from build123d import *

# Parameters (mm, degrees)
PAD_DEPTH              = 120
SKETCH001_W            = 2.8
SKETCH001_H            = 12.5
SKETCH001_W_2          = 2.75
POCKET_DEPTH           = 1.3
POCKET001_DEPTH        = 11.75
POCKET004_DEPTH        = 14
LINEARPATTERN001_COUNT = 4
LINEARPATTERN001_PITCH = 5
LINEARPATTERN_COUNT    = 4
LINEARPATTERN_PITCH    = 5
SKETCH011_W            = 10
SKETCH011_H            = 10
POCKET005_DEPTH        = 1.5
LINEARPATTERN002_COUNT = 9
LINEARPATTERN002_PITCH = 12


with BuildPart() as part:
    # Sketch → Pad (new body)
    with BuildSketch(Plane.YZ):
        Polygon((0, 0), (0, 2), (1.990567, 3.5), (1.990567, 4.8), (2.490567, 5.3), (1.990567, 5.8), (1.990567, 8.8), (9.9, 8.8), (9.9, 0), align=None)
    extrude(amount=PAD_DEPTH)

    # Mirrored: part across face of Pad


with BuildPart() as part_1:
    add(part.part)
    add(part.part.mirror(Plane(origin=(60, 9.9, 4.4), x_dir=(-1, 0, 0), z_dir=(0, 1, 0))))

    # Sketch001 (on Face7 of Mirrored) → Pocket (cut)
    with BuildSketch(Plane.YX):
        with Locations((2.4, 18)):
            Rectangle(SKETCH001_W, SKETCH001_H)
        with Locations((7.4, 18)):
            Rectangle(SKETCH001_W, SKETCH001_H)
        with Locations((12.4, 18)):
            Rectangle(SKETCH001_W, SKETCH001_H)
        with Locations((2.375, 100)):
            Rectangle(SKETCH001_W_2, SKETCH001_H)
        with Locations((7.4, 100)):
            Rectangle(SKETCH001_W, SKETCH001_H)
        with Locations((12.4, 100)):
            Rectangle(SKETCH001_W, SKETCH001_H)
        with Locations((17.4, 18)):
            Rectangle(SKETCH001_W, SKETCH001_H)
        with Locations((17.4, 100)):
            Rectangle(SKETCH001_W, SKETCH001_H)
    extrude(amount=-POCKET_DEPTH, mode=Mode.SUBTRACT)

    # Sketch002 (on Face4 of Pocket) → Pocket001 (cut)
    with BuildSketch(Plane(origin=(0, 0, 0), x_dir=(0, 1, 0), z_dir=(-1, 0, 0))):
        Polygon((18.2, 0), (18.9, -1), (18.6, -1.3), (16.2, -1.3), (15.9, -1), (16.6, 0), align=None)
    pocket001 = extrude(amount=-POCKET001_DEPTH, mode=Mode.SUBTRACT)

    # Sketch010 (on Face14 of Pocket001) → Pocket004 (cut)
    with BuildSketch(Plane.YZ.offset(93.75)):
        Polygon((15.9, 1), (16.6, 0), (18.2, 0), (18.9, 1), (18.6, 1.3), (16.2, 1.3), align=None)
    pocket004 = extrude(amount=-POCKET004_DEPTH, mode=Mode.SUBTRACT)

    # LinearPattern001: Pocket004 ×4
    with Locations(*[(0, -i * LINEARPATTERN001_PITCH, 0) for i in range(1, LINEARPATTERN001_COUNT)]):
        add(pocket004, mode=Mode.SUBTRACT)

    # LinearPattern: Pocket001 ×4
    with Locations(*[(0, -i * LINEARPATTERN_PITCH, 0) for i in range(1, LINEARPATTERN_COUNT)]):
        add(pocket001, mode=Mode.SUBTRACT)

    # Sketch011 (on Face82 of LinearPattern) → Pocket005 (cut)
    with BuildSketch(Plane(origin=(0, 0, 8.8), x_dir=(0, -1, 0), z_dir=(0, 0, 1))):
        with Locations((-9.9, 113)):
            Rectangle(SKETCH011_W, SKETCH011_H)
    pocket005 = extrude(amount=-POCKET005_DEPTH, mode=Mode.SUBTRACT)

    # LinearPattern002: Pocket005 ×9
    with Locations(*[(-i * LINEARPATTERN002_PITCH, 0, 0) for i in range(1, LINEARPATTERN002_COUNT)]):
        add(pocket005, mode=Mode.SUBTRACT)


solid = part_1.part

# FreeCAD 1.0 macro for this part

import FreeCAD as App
import Part
import Sketcher

V = App.Vector
Q = App.Units.Quantity

doc = App.newDocument("Part")
body = doc.addObject("PartDesign::Body", "Body")

sketch1 = body.newObject("Sketcher::SketchObject", "Sketch")
sketch1.AttachmentSupport = (doc.getObject("YZ_Plane"), [""])
sketch1.MapMode = "FlatFace"
sketch1.addGeometry([
    Part.LineSegment(V(0, 2, 0), V(0, 0, 0)),
    Part.LineSegment(V(0, 0, 0), V(9.9, 0, 0)),
    Part.LineSegment(V(9.9, 0, 0), V(9.9, 8.8, 0)),
    Part.LineSegment(V(9.9, 8.8, 0), V(1.990567, 8.8, 0)),
    Part.LineSegment(V(1.990567, 8.8, 0), V(1.990567, 5.8, 0)),
    Part.LineSegment(V(1.990567, 5.8, 0), V(2.490567, 5.3, 0)),
    Part.LineSegment(V(2.490567, 5.3, 0), V(1.990567, 4.8, 0)),
    Part.LineSegment(V(1.990567, 4.8, 0), V(1.990567, 3.5, 0)),
    Part.LineSegment(V(1.990567, 3.5, 0), V(0, 2, 0)),
], False)
sketch1.addConstraint([
    Sketcher.Constraint("Coincident", 0, 2, 1, 1),
    Sketcher.Constraint("Coincident", 1, 2, 2, 1),
    Sketcher.Constraint("Coincident", 2, 2, 3, 1),
    Sketcher.Constraint("Coincident", 3, 2, 4, 1),
    Sketcher.Constraint("Coincident", 4, 2, 5, 1),
    Sketcher.Constraint("Coincident", 5, 2, 6, 1),
    Sketcher.Constraint("Coincident", 6, 2, 7, 1),
    Sketcher.Constraint("Coincident", 7, 2, 8, 1),
    Sketcher.Constraint("Coincident", 8, 2, 0, 1),
    Sketcher.Constraint("Vertical", 0),
    Sketcher.Constraint("Horizontal", 1),
    Sketcher.Constraint("Vertical", 2),
    Sketcher.Constraint("Horizontal", 3),
    Sketcher.Constraint("Vertical", 4),
    Sketcher.Constraint("Vertical", 7),
    Sketcher.Constraint("Coincident", 0, 2, -1, 1),
    Sketcher.Constraint("Perpendicular", 5, 6),
    Sketcher.Constraint("Vertical", 4, 2, 6, 2),
    Sketcher.Constraint("Equal", 5, 6),
    Sketcher.Constraint("DistanceY", 0, 2, 0, 1, Q("2 mm")),
    Sketcher.Constraint("DistanceY", 4, 2, 4, 1, Q("3 mm")),
    Sketcher.Constraint("Angle", 8, Q("-142.999997 deg")),
    Sketcher.Constraint("DistanceX", 1, 1, 1, 2, Q("9.9 mm")),
    Sketcher.Constraint("DistanceY", 2, 1, 2, 2, Q("8.8 mm")),
    Sketcher.Constraint("DistanceY", 7, 2, 7, 1, Q("1.3 mm")),
    Sketcher.Constraint("DistanceY", 6, 2, 4, 2, Q("1 mm")),
])
pad1 = body.newObject("PartDesign::Pad", "Pad")
pad1.Profile = sketch1
pad1.Length = 120
body2 = doc.addObject("PartDesign::Body", "Body001")
doc.recompute()

body2.BaseFeature = body
doc.recompute()

mirroring = doc.addObject("Part::Mirroring", "Mirroring")
mirroring.Source = body
mirroring.Base = V(60, 9.9, 4.4)
mirroring.Normal = V(0, 1, 0)
body3 = doc.addObject("PartDesign::Body", "Body002")
body3.BaseFeature = mirroring
boolean = body2.newObject("PartDesign::Boolean", "Boolean")
boolean.Type = "Fuse"
boolean.addObjects([body3])
doc.recompute()

sketch2 = body2.newObject("Sketcher::SketchObject", "Sketch001")
sketch2.AttachmentSupport = (doc.getObject("XY_Plane001"), [""])
sketch2.MapMode = "FlatFace"
sketch2.addGeometry([
    Part.LineSegment(V(24.25, 1, 0), V(11.75, 1, 0)),
    Part.LineSegment(V(11.75, 1, 0), V(11.75, 3.8, 0)),
    Part.LineSegment(V(11.75, 3.8, 0), V(24.25, 3.8, 0)),
    Part.LineSegment(V(24.25, 3.8, 0), V(24.25, 1, 0)),
    Part.LineSegment(V(24.25, 6, 0), V(11.75, 6, 0)),
    Part.LineSegment(V(11.75, 6, 0), V(11.75, 8.8, 0)),
    Part.LineSegment(V(11.75, 8.8, 0), V(24.25, 8.8, 0)),
    Part.LineSegment(V(24.25, 8.8, 0), V(24.25, 6, 0)),
    Part.LineSegment(V(24.25, 11, 0), V(11.75, 11, 0)),
    Part.LineSegment(V(11.75, 11, 0), V(11.75, 13.8, 0)),
    Part.LineSegment(V(11.75, 13.8, 0), V(24.25, 13.8, 0)),
    Part.LineSegment(V(24.25, 13.8, 0), V(24.25, 11, 0)),
    Part.LineSegment(V(106.25, 1, 0), V(93.75, 1, 0)),
    Part.LineSegment(V(93.75, 1, 0), V(93.75, 3.75, 0)),
    Part.LineSegment(V(93.75, 3.75, 0), V(106.25, 3.75, 0)),
    Part.LineSegment(V(106.25, 3.75, 0), V(106.25, 1, 0)),
    Part.LineSegment(V(106.25, 6, 0), V(93.75, 6, 0)),
    Part.LineSegment(V(93.75, 6, 0), V(93.75, 8.8, 0)),
    Part.LineSegment(V(93.75, 8.8, 0), V(106.25, 8.8, 0)),
    Part.LineSegment(V(106.25, 8.8, 0), V(106.25, 6, 0)),
    Part.LineSegment(V(106.25, 11, 0), V(93.75, 11, 0)),
    Part.LineSegment(V(93.75, 11, 0), V(93.75, 13.8, 0)),
    Part.LineSegment(V(93.75, 13.8, 0), V(106.25, 13.8, 0)),
    Part.LineSegment(V(106.25, 13.8, 0), V(106.25, 11, 0)),
    Part.LineSegment(V(24.25, 16, 0), V(11.75, 16, 0)),
    Part.LineSegment(V(11.75, 16, 0), V(11.75, 18.8, 0)),
    Part.LineSegment(V(11.75, 18.8, 0), V(24.25, 18.8, 0)),
    Part.LineSegment(V(24.25, 18.8, 0), V(24.25, 16, 0)),
    Part.LineSegment(V(106.25, 16, 0), V(93.75, 16, 0)),
    Part.LineSegment(V(93.75, 16, 0), V(93.75, 18.8, 0)),
    Part.LineSegment(V(93.75, 18.8, 0), V(106.25, 18.8, 0)),
    Part.LineSegment(V(106.25, 18.8, 0), V(106.25, 16, 0)),
], False)
sketch2.addConstraint([
    Sketcher.Constraint("Coincident", 0, 2, 1, 1),
    Sketcher.Constraint("Coincident", 1, 2, 2, 1),
    Sketcher.Constraint("Coincident", 2, 2, 3, 1),
    Sketcher.Constraint("Coincident", 3, 2, 0, 1),
    Sketcher.Constraint("Coincident", 4, 2, 5, 1),
    Sketcher.Constraint("Coincident", 5, 2, 6, 1),
    Sketcher.Constraint("Coincident", 6, 2, 7, 1),
    Sketcher.Constraint("Coincident", 7, 2, 4, 1),
    Sketcher.Constraint("Coincident", 8, 2, 9, 1),
    Sketcher.Constraint("Coincident", 9, 2, 10, 1),
    Sketcher.Constraint("Coincident", 10, 2, 11, 1),
    Sketcher.Constraint("Coincident", 11, 2, 8, 1),
    Sketcher.Constraint("Coincident", 12, 2, 13, 1),
    Sketcher.Constraint("Coincident", 13, 2, 14, 1),
    Sketcher.Constraint("Coincident", 14, 2, 15, 1),
    Sketcher.Constraint("Coincident", 15, 2, 12, 1),
    Sketcher.Constraint("Coincident", 16, 2, 17, 1),
    Sketcher.Constraint("Coincident", 17, 2, 18, 1),
    Sketcher.Constraint("Coincident", 18, 2, 19, 1),
    Sketcher.Constraint("Coincident", 19, 2, 16, 1),
    Sketcher.Constraint("Coincident", 20, 2, 21, 1),
    Sketcher.Constraint("Coincident", 21, 2, 22, 1),
    Sketcher.Constraint("Coincident", 22, 2, 23, 1),
    Sketcher.Constraint("Coincident", 23, 2, 20, 1),
    Sketcher.Constraint("Coincident", 24, 2, 25, 1),
    Sketcher.Constraint("Coincident", 25, 2, 26, 1),
    Sketcher.Constraint("Coincident", 26, 2, 27, 1),
    Sketcher.Constraint("Coincident", 27, 2, 24, 1),
    Sketcher.Constraint("Coincident", 28, 2, 29, 1),
    Sketcher.Constraint("Coincident", 29, 2, 30, 1),
    Sketcher.Constraint("Coincident", 30, 2, 31, 1),
    Sketcher.Constraint("Coincident", 31, 2, 28, 1),
    Sketcher.Constraint("Horizontal", 0),
    Sketcher.Constraint("Vertical", 1),
    Sketcher.Constraint("Horizontal", 2),
    Sketcher.Constraint("Vertical", 3),
    Sketcher.Constraint("Horizontal", 4),
    Sketcher.Constraint("Vertical", 5),
    Sketcher.Constraint("Horizontal", 6),
    Sketcher.Constraint("Vertical", 7),
    Sketcher.Constraint("Horizontal", 8),
    Sketcher.Constraint("Vertical", 9),
    Sketcher.Constraint("Horizontal", 10),
    Sketcher.Constraint("Vertical", 11),
    Sketcher.Constraint("Horizontal", 12),
    Sketcher.Constraint("Vertical", 13),
    Sketcher.Constraint("Horizontal", 14),
    Sketcher.Constraint("Vertical", 15),
    Sketcher.Constraint("Horizontal", 16),
    Sketcher.Constraint("Vertical", 17),
    Sketcher.Constraint("Horizontal", 18),
    Sketcher.Constraint("Vertical", 19),
    Sketcher.Constraint("Horizontal", 20),
    Sketcher.Constraint("Vertical", 21),
    Sketcher.Constraint("Horizontal", 22),
    Sketcher.Constraint("Vertical", 23),
    Sketcher.Constraint("Horizontal", 24),
    Sketcher.Constraint("Vertical", 25),
    Sketcher.Constraint("Horizontal", 26),
    Sketcher.Constraint("Vertical", 27),
    Sketcher.Constraint("Horizontal", 28),
    Sketcher.Constraint("Vertical", 29),
    Sketcher.Constraint("Horizontal", 30),
    Sketcher.Constraint("Vertical", 31),
    Sketcher.Constraint("Horizontal", 3, 2, 12, 2),
    Sketcher.Constraint("Horizontal", 7, 2, 16, 2),
    Sketcher.Constraint("Horizontal", 6, 2, 17, 2),
    Sketcher.Constraint("Horizontal", 11, 2, 20, 2),
    Sketcher.Constraint("Horizontal", 10, 2, 21, 2),
    Sketcher.Constraint("Horizontal", 27, 2, 28, 2),
    Sketcher.Constraint("Horizontal", 26, 2, 29, 2),
    Sketcher.Constraint("Vertical", 1, 2, 4, 2),
    Sketcher.Constraint("Vertical", 3, 2, 6, 2),
    Sketcher.Constraint("Vertical", 5, 2, 8, 2),
    Sketcher.Constraint("Vertical", 7, 2, 10, 2),
    Sketcher.Constraint("Vertical", 13, 2, 16, 2),
    Sketcher.Constraint("Vertical", 15, 2, 18, 2),
    Sketcher.Constraint("Vertical", 17, 2, 20, 2),
    Sketcher.Constraint("Vertical", 19, 2, 22, 2),
    Sketcher.Constraint("Vertical", 9, 2, 24, 2),
    Sketcher.Constraint("Vertical", 11, 2, 26, 2),
    Sketcher.Constraint("Vertical", 21, 2, 28, 2),
    Sketcher.Constraint("Vertical", 23, 2, 30, 2),
    Sketcher.Constraint("Equal", 10, 12),
    Sketcher.Constraint("Equal", 3, 5),
    Sketcher.Constraint("Equal", 7, 9),
    Sketcher.Constraint("Equal", 23, 25),
    Sketcher.Constraint("DistanceX", 0, 2, 0, 1, Q("12.5 mm")),
    Sketcher.Constraint("DistanceY", 1, 1, 1, 2, Q("2.8 mm")),
    Sketcher.Constraint("DistanceY", -1, 1, 0, 2, Q("1 mm")),
    Sketcher.Constraint("DistanceY", -1, 1, 4, 2, Q("6 mm")),
    Sketcher.Constraint("DistanceY", -1, 1, 8, 2, Q("11 mm")),
    Sketcher.Constraint("DistanceY", -1, 1, 24, 2, Q("16 mm")),
    Sketcher.Constraint("DistanceX", 2, 2, 14, 2, Q("82 mm")),
    Sketcher.Constraint("DistanceY", 13, 1, 13, 2, Q("2.75 mm")),
    Sketcher.Constraint("DistanceX", -1, 1, 0, 2, Q("11.75 mm")),
])
pocket1 = body2.newObject("PartDesign::Pocket", "Pocket")
pocket1.Profile = sketch2
pocket1.Length = 1.3
pocket1.Reversed = True

sketch3 = body2.newObject("Sketcher::SketchObject", "Sketch002")
sketch3.AttachmentSupport = (doc.getObject("YZ_Plane001"), [""])
sketch3.MapMode = "FlatFace"
sketch3.addGeometry([
    Part.LineSegment(V(18.9, 1, 0), V(18.2, 0, 0)),
    Part.LineSegment(V(18.2, 0, 0), V(16.6, 0, 0)),
    Part.LineSegment(V(16.6, 0, 0), V(15.9, 1, 0)),
    Part.LineSegment(V(15.9, 1, 0), V(16.2, 1.3, 0)),
    Part.LineSegment(V(16.2, 1.3, 0), V(18.6, 1.3, 0)),
    Part.LineSegment(V(18.6, 1.3, 0), V(18.9, 1, 0)),
], False)
sketch3.addConstraint([
    Sketcher.Constraint("Coincident", 0, 2, 1, 1),
    Sketcher.Constraint("Coincident", 1, 2, 2, 1),
    Sketcher.Constraint("Coincident", 2, 2, 3, 1),
    Sketcher.Constraint("Coincident", 3, 2, 4, 1),
    Sketcher.Constraint("Coincident", 4, 2, 5, 1),
    Sketcher.Constraint("Coincident", 5, 2, 0, 1),
    Sketcher.Constraint("Horizontal", 1),
    Sketcher.Constraint("Horizontal", 4),
    Sketcher.Constraint("PointOnObject", 0, 2, -1),
    Sketcher.Constraint("Perpendicular", 3, 5),
    Sketcher.Constraint("Horizontal", 2, 2, 5, 2),
    Sketcher.Constraint("Equal", 0, 2),
    Sketcher.Constraint("Equal", 3, 5),
    Sketcher.Constraint("DistanceX", 1, 2, 1, 1, Q("1.6 mm")),
    Sketcher.Constraint("DistanceX", 4, 1, 4, 2, Q("2.4 mm")),
    Sketcher.Constraint("DistanceY", -1, 1, 2, 2, Q("1 mm")),
    Sketcher.Constraint("DistanceX", 2, 2, 5, 2, Q("3 mm")),
    Sketcher.Constraint("DistanceX", -1, 1, 0, 2, Q("18.2 mm")),
])
pocket2 = body2.newObject("PartDesign::Pocket", "Pocket001")
pocket2.Profile = sketch3
pocket2.Length = 11.75
pocket2.Reversed = True

sketch4 = body2.newObject("Sketcher::SketchObject", "Sketch003")
sketch4.AttachmentSupport = (doc.getObject("YZ_Plane001"), [""])
sketch4.MapMode = "FlatFace"
sketch4.AttachmentOffset = App.Placement(V(0, 0, 93.75), App.Rotation())
sketch4.addGeometry([
    Part.LineSegment(V(15.9, 1, 0), V(16.6, 0, 0)),
    Part.LineSegment(V(16.6, 0, 0), V(18.2, 0, 0)),
    Part.LineSegment(V(18.2, 0, 0), V(18.9, 1, 0)),
    Part.LineSegment(V(18.9, 1, 0), V(18.6, 1.3, 0)),
    Part.LineSegment(V(18.6, 1.3, 0), V(16.2, 1.3, 0)),
    Part.LineSegment(V(16.2, 1.3, 0), V(15.9, 1, 0)),
], False)
sketch4.addConstraint([
    Sketcher.Constraint("Coincident", 0, 2, 1, 1),
    Sketcher.Constraint("Coincident", 1, 2, 2, 1),
    Sketcher.Constraint("Coincident", 2, 2, 3, 1),
    Sketcher.Constraint("Coincident", 3, 2, 4, 1),
    Sketcher.Constraint("Coincident", 4, 2, 5, 1),
    Sketcher.Constraint("Coincident", 5, 2, 0, 1),
    Sketcher.Constraint("Horizontal", 1),
    Sketcher.Constraint("Horizontal", 4),
    Sketcher.Constraint("PointOnObject", 0, 2, -1),
    Sketcher.Constraint("Perpendicular", 3, 5),
    Sketcher.Constraint("Horizontal", 2, 2, 5, 2),
    Sketcher.Constraint("Equal", 0, 2),
    Sketcher.Constraint("Equal", 3, 5),
    Sketcher.Constraint("DistanceX", 1, 1, 1, 2, Q("1.6 mm")),
    Sketcher.Constraint("DistanceX", 4, 2, 4, 1, Q("2.4 mm")),
    Sketcher.Constraint("DistanceY", -1, 1, 2, 2, Q("1 mm")),
    Sketcher.Constraint("DistanceX", 5, 2, 2, 2, Q("3 mm")),
    Sketcher.Constraint("DistanceX", -1, 1, 0, 2, Q("16.6 mm")),
])
pocket3 = body2.newObject("PartDesign::Pocket", "Pocket002")
pocket3.Profile = sketch4
pocket3.Length = 14
doc.recompute()

linearpattern = body2.newObject("PartDesign::LinearPattern", "LinearPattern")
linearpattern.Originals = [pocket3]
linearpattern.Direction = (doc.getObject("Y_Axis001"), [""])
linearpattern.Mode = "offset"
linearpattern.Offset = 5
linearpattern.Occurrences = 4
linearpattern.Reversed = True
body2.Tip = linearpattern
doc.recompute()

linearpattern2 = body2.newObject("PartDesign::LinearPattern", "LinearPattern001")
linearpattern2.Originals = [pocket2]
linearpattern2.Direction = (doc.getObject("Y_Axis001"), [""])
linearpattern2.Mode = "offset"
linearpattern2.Offset = 5
linearpattern2.Occurrences = 4
linearpattern2.Reversed = True
body2.Tip = linearpattern2

sketch5 = body2.newObject("Sketcher::SketchObject", "Sketch004")
sketch5.AttachmentSupport = (doc.getObject("XY_Plane001"), [""])
sketch5.MapMode = "FlatFace"
sketch5.AttachmentOffset = App.Placement(V(0, 0, 8.8), App.Rotation())
sketch5.addGeometry([
    Part.LineSegment(V(118, 14.9, 0), V(108, 14.9, 0)),
    Part.LineSegment(V(108, 14.9, 0), V(108, 4.9, 0)),
    Part.LineSegment(V(108, 4.9, 0), V(118, 4.9, 0)),
    Part.LineSegment(V(118, 4.9, 0), V(118, 14.9, 0)),
], False)
sketch5.addConstraint([
    Sketcher.Constraint("Coincident", 0, 2, 1, 1),
    Sketcher.Constraint("Coincident", 1, 2, 2, 1),
    Sketcher.Constraint("Coincident", 2, 2, 3, 1),
    Sketcher.Constraint("Coincident", 3, 2, 0, 1),
    Sketcher.Constraint("Horizontal", 0),
    Sketcher.Constraint("Vertical", 1),
    Sketcher.Constraint("Horizontal", 2),
    Sketcher.Constraint("Vertical", 3),
    Sketcher.Constraint("Equal", 2, 1),
    Sketcher.Constraint("DistanceX", 0, 2, 0, 1, Q("10 mm")),
    Sketcher.Constraint("DistanceX", -1, 1, 0, 2, Q("108 mm")),
    Sketcher.Constraint("DistanceY", -1, 1, 0, 2, Q("14.9 mm")),
])
pocket4 = body2.newObject("PartDesign::Pocket", "Pocket003")
pocket4.Profile = sketch5
pocket4.Length = 1.5
doc.recompute()

linearpattern3 = body2.newObject("PartDesign::LinearPattern", "LinearPattern002")
linearpattern3.Originals = [pocket4]
linearpattern3.Direction = (doc.getObject("X_Axis001"), [""])
linearpattern3.Mode = "offset"
linearpattern3.Offset = 12
linearpattern3.Occurrences = 9
linearpattern3.Reversed = True
body2.Tip = linearpattern3
mirroring.Visibility = False

doc.recompute()
